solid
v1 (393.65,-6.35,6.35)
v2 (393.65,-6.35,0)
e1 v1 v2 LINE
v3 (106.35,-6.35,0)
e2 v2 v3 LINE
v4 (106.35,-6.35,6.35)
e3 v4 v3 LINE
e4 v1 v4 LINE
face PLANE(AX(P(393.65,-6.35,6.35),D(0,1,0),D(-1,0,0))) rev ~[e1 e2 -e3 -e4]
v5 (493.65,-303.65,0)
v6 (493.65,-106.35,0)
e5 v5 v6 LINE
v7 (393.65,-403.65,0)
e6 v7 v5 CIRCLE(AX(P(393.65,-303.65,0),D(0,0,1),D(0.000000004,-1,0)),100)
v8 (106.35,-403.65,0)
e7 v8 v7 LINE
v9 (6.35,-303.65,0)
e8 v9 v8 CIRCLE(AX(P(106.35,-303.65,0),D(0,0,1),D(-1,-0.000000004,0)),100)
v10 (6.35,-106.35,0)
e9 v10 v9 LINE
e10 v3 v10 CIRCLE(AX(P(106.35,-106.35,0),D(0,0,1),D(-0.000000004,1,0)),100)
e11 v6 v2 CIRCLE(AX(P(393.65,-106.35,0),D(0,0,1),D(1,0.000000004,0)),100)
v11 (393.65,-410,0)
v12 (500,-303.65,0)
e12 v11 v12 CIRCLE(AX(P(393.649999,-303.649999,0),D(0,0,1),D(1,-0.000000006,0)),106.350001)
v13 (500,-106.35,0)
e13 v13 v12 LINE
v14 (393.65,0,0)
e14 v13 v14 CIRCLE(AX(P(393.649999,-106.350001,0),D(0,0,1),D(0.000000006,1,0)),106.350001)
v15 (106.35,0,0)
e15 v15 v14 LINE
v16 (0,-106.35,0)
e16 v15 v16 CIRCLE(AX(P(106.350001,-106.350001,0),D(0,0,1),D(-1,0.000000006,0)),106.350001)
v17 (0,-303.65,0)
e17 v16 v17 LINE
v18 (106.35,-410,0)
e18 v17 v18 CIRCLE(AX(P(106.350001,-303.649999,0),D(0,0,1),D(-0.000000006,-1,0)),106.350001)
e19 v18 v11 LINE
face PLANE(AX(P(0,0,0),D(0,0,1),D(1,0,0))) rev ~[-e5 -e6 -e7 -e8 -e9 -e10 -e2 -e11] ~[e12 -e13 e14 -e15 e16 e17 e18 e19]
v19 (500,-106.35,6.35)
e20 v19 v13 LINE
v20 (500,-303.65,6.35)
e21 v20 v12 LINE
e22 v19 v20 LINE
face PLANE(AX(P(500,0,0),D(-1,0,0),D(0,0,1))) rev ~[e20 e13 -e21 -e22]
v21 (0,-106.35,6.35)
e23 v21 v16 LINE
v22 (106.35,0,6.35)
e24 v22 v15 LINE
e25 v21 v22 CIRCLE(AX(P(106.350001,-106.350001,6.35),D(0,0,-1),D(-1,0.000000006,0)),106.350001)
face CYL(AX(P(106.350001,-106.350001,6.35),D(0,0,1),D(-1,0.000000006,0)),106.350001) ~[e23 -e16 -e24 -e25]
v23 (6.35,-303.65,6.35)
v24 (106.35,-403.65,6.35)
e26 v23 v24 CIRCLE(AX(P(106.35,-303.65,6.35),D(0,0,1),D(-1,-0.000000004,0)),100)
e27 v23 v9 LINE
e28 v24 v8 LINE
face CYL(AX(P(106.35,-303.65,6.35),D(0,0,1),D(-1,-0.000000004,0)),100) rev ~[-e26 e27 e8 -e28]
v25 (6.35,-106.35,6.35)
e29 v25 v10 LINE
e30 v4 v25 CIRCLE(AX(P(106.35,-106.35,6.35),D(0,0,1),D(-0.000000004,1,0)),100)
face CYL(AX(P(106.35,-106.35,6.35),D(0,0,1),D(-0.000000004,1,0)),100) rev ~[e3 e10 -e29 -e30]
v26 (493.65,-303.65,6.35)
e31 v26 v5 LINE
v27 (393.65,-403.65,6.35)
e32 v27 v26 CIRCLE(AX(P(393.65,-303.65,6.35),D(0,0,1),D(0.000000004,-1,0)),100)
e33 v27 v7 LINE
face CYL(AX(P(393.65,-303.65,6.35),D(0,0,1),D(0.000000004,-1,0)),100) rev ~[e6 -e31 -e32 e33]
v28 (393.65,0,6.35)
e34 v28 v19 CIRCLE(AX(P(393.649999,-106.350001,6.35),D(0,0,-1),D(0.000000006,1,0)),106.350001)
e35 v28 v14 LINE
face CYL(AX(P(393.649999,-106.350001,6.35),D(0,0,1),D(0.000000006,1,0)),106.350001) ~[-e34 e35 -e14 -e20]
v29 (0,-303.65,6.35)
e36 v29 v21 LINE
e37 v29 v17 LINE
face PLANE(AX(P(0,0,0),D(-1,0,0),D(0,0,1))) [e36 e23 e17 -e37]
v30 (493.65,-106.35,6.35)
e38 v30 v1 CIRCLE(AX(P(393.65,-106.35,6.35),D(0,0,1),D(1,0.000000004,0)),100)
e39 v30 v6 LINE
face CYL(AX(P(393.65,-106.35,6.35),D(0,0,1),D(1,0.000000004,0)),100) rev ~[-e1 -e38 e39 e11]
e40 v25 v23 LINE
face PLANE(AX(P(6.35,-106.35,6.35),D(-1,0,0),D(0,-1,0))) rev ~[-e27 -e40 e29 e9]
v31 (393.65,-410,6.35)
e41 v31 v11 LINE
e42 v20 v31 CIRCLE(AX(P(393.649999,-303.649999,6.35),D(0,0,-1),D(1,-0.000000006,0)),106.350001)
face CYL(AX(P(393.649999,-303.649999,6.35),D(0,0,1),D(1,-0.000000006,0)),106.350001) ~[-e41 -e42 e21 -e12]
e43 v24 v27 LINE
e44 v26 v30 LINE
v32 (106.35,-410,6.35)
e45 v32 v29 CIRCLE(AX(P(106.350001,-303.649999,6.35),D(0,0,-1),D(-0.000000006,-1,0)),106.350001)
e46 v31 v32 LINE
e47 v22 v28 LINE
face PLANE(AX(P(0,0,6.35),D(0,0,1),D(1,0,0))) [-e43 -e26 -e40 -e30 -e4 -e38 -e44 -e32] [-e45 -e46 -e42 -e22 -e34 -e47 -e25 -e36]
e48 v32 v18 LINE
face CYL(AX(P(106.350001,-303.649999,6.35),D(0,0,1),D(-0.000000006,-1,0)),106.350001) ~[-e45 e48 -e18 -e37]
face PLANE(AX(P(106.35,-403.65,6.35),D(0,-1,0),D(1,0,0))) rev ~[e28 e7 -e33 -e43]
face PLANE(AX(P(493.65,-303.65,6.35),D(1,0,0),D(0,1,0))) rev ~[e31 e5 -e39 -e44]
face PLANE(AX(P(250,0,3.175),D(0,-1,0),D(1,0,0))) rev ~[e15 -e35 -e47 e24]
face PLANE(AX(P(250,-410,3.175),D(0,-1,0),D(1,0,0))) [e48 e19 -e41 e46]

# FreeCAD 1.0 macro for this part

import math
import FreeCAD as App
import Part
import Sketcher
from FreeCAD import Vector
Q = App.Units.Quantity

doc = App.newDocument("Part")
body = doc.addObject("PartDesign::Body", "Body")

sketch1 = body.newObject("Sketcher::SketchObject", "Sketch")
sketch1.AttachmentSupport = (doc.getObject("XZ_Plane"), [""])
sketch1.MapMode = "FlatFace"
sketch1.addGeometry(Part.LineSegment(Vector(0, 6, 0), Vector(0, 0, 0)), False)
sketch1.addGeometry(Part.LineSegment(Vector(0, 0, 0), Vector(500, 0, 0)), False)
sketch1.addGeometry(Part.LineSegment(Vector(500, 0, 0), Vector(500, 6, 0)), False)
sketch1.addGeometry(Part.LineSegment(Vector(500, 6, 0), Vector(0, 6, 0)), False)
sketch1.addConstraint(Sketcher.Constraint("Coincident", 0, 2, 1, 1))
sketch1.addConstraint(Sketcher.Constraint("Coincident", 1, 2, 2, 1))
sketch1.addConstraint(Sketcher.Constraint("Coincident", 2, 2, 3, 1))
sketch1.addConstraint(Sketcher.Constraint("Coincident", 3, 2, 0, 1))
sketch1.addConstraint(Sketcher.Constraint("Vertical", 0))
sketch1.addConstraint(Sketcher.Constraint("Horizontal", 1))
sketch1.addConstraint(Sketcher.Constraint("Vertical", 2))
sketch1.addConstraint(Sketcher.Constraint("Horizontal", 3))
sketch1.addConstraint(Sketcher.Constraint("Coincident", 0, 2, -1, 1))
sketch1.addConstraint(Sketcher.Constraint("DistanceX", 1, 1, 1, 2, Q("500 mm")))
sketch1.addConstraint(Sketcher.Constraint("DistanceY", 0, 2, 0, 1, Q("6.35 mm")))
pad1 = body.newObject("PartDesign::Pad", "Pad")
pad1.Profile = sketch1
pad1.Length = 410

sketch2 = body.newObject("Sketcher::SketchObject", "Sketch001")
sketch2.AttachmentSupport = (doc.getObject("XY_Plane"), [""])
sketch2.MapMode = "FlatFace"
sketch2.AttachmentOffset = App.Placement(Vector(0, 0, 6.35), App.Rotation())
sketch2.addGeometry(Part.LineSegment(Vector(394, -6, 0), Vector(106, -6, 0)), False)
sketch2.addGeometry(Part.ArcOfCircle(Part.Circle(Vector(106, -106, 0), Vector(0, 0, 1), 100), math.radians(90), math.radians(180)), False)
sketch2.addGeometry(Part.LineSegment(Vector(6, -106, 0), Vector(6, -304, 0)), False)
sketch2.addGeometry(Part.ArcOfCircle(Part.Circle(Vector(106, -304, 0), Vector(0, 0, 1), 100), math.radians(-180), math.radians(-90)), False)
sketch2.addGeometry(Part.LineSegment(Vector(106, -404, 0), Vector(394, -404, 0)), False)
sketch2.addGeometry(Part.ArcOfCircle(Part.Circle(Vector(394, -304, 0), Vector(0, 0, 1), 100), math.radians(-90), math.radians(0)), False)
sketch2.addGeometry(Part.LineSegment(Vector(494, -304, 0), Vector(494, -106, 0)), False)
sketch2.addGeometry(Part.ArcOfCircle(Part.Circle(Vector(394, -106, 0), Vector(0, 0, 1), 100), math.radians(0), math.radians(90)), False)
sketch2.addConstraint(Sketcher.Constraint("Tangent", 0, 2, 1, 1))
sketch2.addConstraint(Sketcher.Constraint("Tangent", 1, 2, 2, 1))
sketch2.addConstraint(Sketcher.Constraint("Tangent", 2, 2, 3, 1))
sketch2.addConstraint(Sketcher.Constraint("Tangent", 3, 2, 4, 1))
sketch2.addConstraint(Sketcher.Constraint("Tangent", 4, 2, 5, 1))
sketch2.addConstraint(Sketcher.Constraint("Tangent", 5, 2, 6, 1))
sketch2.addConstraint(Sketcher.Constraint("Tangent", 6, 2, 7, 1))
sketch2.addConstraint(Sketcher.Constraint("Tangent", 7, 2, 0, 1))
sketch2.addConstraint(Sketcher.Constraint("Horizontal", 0))
sketch2.addConstraint(Sketcher.Constraint("Vertical", 2))
sketch2.addConstraint(Sketcher.Constraint("Horizontal", 4))
sketch2.addConstraint(Sketcher.Constraint("Vertical", 6))
sketch2.addConstraint(Sketcher.Constraint("Equal", 1, 3))
sketch2.addConstraint(Sketcher.Constraint("Equal", 3, 5))
sketch2.addConstraint(Sketcher.Constraint("Equal", 5, 7))
sketch2.addConstraint(Sketcher.Constraint("Radius", 1, Q("100 mm")))
sketch2.addConstraint(Sketcher.Constraint("DistanceX", 0, 2, 0, 1, Q("287.3 mm")))
sketch2.addConstraint(Sketcher.Constraint("DistanceY", 2, 2, 2, 1, Q("197.3 mm")))
sketch2.addConstraint(Sketcher.Constraint("DistanceX", -1, 1, 1, 3, Q("106.35 mm")))
sketch2.addConstraint(Sketcher.Constraint("DistanceY", 1, 3, -1, 1, Q("106.35 mm")))
pocket1 = body.newObject("PartDesign::Pocket", "Pocket")
pocket1.Profile = sketch2
pocket1.Length = 25

sketch3 = body.newObject("Sketcher::SketchObject", "Sketch002")
sketch3.AttachmentSupport = (doc.getObject("XY_Plane"), [""])
sketch3.MapMode = "FlatFace"
sketch3.AttachmentOffset = App.Placement(Vector(0, 0, 6.35), App.Rotation())
sketch3.addGeometry(Part.LineSegment(Vector(-9, 7, 0), Vector(-9, -417, 0)), False)
sketch3.addGeometry(Part.LineSegment(Vector(-9, -417, 0), Vector(508, -417, 0)), False)
sketch3.addGeometry(Part.LineSegment(Vector(508, -417, 0), Vector(508, 7, 0)), False)
sketch3.addGeometry(Part.LineSegment(Vector(508, 7, 0), Vector(-9, 7, 0)), False)
sketch3.addGeometry(Part.LineSegment(Vector(0, -304, 0), Vector(0, -106, 0)), False)
sketch3.addGeometry(Part.ArcOfCircle(Part.Circle(Vector(106, -106, 0), Vector(0, 0, 1), 106), math.radians(90), math.radians(180)), False)
sketch3.addGeometry(Part.LineSegment(Vector(106, 0, 0), Vector(394, 0, 0)), False)
sketch3.addGeometry(Part.ArcOfCircle(Part.Circle(Vector(394, -106, 0), Vector(0, 0, 1), 106), math.radians(0), math.radians(90)), False)
sketch3.addGeometry(Part.LineSegment(Vector(500, -106, 0), Vector(500, -304, 0)), False)
sketch3.addGeometry(Part.ArcOfCircle(Part.Circle(Vector(394, -304, 0), Vector(0, 0, 1), 106), math.radians(-90), math.radians(0)), False)
sketch3.addGeometry(Part.LineSegment(Vector(394, -410, 0), Vector(106, -410, 0)), False)
sketch3.addGeometry(Part.ArcOfCircle(Part.Circle(Vector(106, -304, 0), Vector(0, 0, 1), 106), math.radians(-180), math.radians(-90)), False)
sketch3.addConstraint(Sketcher.Constraint("Coincident", 0, 2, 1, 1))
sketch3.addConstraint(Sketcher.Constraint("Coincident", 1, 2, 2, 1))
sketch3.addConstraint(Sketcher.Constraint("Coincident", 2, 2, 3, 1))
sketch3.addConstraint(Sketcher.Constraint("Coincident", 3, 2, 0, 1))
sketch3.addConstraint(Sketcher.Constraint("Tangent", 4, 2, 5, 2))
sketch3.addConstraint(Sketcher.Constraint("Tangent", 5, 1, 6, 1))
sketch3.addConstraint(Sketcher.Constraint("Tangent", 6, 2, 7, 2))
sketch3.addConstraint(Sketcher.Constraint("Tangent", 7, 1, 8, 1))
sketch3.addConstraint(Sketcher.Constraint("Tangent", 8, 2, 9, 2))
sketch3.addConstraint(Sketcher.Constraint("Tangent", 9, 1, 10, 1))
sketch3.addConstraint(Sketcher.Constraint("Tangent", 10, 2, 11, 2))
sketch3.addConstraint(Sketcher.Constraint("Tangent", 11, 1, 4, 1))
sketch3.addConstraint(Sketcher.Constraint("Vertical", 0))
sketch3.addConstraint(Sketcher.Constraint("Horizontal", 1))
sketch3.addConstraint(Sketcher.Constraint("Vertical", 2))
sketch3.addConstraint(Sketcher.Constraint("Horizontal", 3))
sketch3.addConstraint(Sketcher.Constraint("Vertical", 4))
sketch3.addConstraint(Sketcher.Constraint("Horizontal", 6))
sketch3.addConstraint(Sketcher.Constraint("Vertical", 8))
sketch3.addConstraint(Sketcher.Constraint("Horizontal", 10))
sketch3.addConstraint(Sketcher.Constraint("Equal", 5, 7))
sketch3.addConstraint(Sketcher.Constraint("Equal", 7, 9))
sketch3.addConstraint(Sketcher.Constraint("Equal", 9, 11))
sketch3.addConstraint(Sketcher.Constraint("PointOnObject", 4, 2, -2))
sketch3.addConstraint(Sketcher.Constraint("PointOnObject", 5, 1, -1))
sketch3.addConstraint(Sketcher.Constraint("Radius", 5, Q("106.350001 mm")))
sketch3.addConstraint(Sketcher.Constraint("DistanceX", 6, 1, 6, 2, Q("287.3 mm")))
sketch3.addConstraint(Sketcher.Constraint("DistanceY", 4, 1, 4, 2, Q("197.3 mm")))
sketch3.addConstraint(Sketcher.Constraint("DistanceY", 0, 2, 0, 1, Q("424.169128 mm")))
sketch3.addConstraint(Sketcher.Constraint("DistanceX", 1, 1, 1, 2, Q("517.022076 mm")))
sketch3.addConstraint(Sketcher.Constraint("DistanceX", 0, 2, -1, 1, Q("8.77482 mm")))
sketch3.addConstraint(Sketcher.Constraint("DistanceY", 0, 2, -1, 1, Q("417.348355 mm")))
pocket2 = body.newObject("PartDesign::Pocket", "Pocket001")
pocket2.Profile = sketch3
pocket2.Length = 25

doc.recompute()
